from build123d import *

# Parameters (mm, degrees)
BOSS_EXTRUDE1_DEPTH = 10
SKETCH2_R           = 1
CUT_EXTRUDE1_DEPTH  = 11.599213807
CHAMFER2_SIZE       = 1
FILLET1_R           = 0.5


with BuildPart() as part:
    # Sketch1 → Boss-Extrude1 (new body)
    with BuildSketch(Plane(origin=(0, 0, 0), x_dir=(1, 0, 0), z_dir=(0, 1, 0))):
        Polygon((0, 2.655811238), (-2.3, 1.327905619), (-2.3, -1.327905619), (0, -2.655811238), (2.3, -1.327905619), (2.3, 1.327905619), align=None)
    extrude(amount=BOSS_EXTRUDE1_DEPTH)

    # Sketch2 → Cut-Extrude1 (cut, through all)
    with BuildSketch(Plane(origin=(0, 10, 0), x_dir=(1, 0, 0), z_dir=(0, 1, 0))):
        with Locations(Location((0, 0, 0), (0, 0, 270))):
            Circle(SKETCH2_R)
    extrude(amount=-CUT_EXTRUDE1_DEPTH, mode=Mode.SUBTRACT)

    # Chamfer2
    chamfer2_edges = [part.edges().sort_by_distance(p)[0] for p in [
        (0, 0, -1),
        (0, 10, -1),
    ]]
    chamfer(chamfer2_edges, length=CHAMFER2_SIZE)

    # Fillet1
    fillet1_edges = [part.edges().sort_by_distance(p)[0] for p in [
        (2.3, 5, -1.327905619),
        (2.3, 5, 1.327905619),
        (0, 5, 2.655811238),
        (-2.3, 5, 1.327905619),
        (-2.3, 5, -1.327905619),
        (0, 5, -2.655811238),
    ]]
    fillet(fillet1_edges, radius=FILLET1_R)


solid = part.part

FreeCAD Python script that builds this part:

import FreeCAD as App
import Part
import Sketcher
from FreeCAD import Vector
Q = App.Units.Quantity


def edges_at(feature, points):
    """Names of the edges that pass closest to the given points."""
    edges = feature.Shape.Edges
    near = lambda p: min(range(len(edges)), key=lambda i: edges[i].distToShape(Part.Vertex(*p))[0])
    return sorted({f"Edge{near(p) + 1}" for p in points})


def add_polygon(sketch, points):
    """Adds a closed chain of lines whose ends are joined by coincident constraints."""
    first, n = sketch.GeometryCount, len(points)
    for a, b in zip(points, points[1:] + points[:1]):
        sketch.addGeometry(Part.LineSegment(App.Vector(*a, 0), App.Vector(*b, 0)), False)
    for i in range(n):
        sketch.addConstraint(Sketcher.Constraint("Coincident", first + i, 2, first + (i + 1) % n, 1))

doc = App.newDocument("Part")
body = doc.addObject("PartDesign::Body", "Body")

# Sketch on XZ plane
sketch1 = body.newObject("Sketcher::SketchObject", "Sketch")
sketch1.AttachmentSupport = (doc.getObject("XZ_Plane"), [""])
sketch1.MapMode = "FlatFace"
add_polygon(sketch1, [(0, -2.7), (-2.3, -1.3), (-2.3, 1.3), (0, 2.7), (2.3, 1.3), (2.3, -1.3)])  # lines 0-5
sketch1.addConstraint([
    Sketcher.Constraint("Vertical", 1),
    Sketcher.Constraint("Vertical", 4),
    Sketcher.Constraint("Symmetric", 0, 2, 3, 2, -1, 1),
    Sketcher.Constraint("Symmetric", 2, 2, 5, 2, -1, 1),
    Sketcher.Constraint("PointOnObject", 2, 2, -2),
    Sketcher.Constraint("Parallel", 2, 5),
    Sketcher.Constraint("Horizontal", 1, 2, 3, 2),
    Sketcher.Constraint("Angle", 0, Q("150 deg")),
    Sketcher.Constraint("DistanceX", 0, 2, -1, 1, Q("2.3 mm")),
    Sketcher.Constraint("DistanceY", 1, 1, 1, 2, Q("2.655811 mm")),
])
pad1 = body.newObject("PartDesign::Pad", "Pad")
pad1.Profile = sketch1
pad1.Length = 10
pad1.Reversed = True

# Sketch on XZ plane
sketch2 = body.newObject("Sketcher::SketchObject", "Sketch001")
sketch2.AttachmentSupport = (doc.getObject("XZ_Plane"), [""])
sketch2.MapMode = "FlatFace"
sketch2.AttachmentOffset = App.Placement(Vector(0, 0, -10), App.Rotation())
sketch2.addGeometry(Part.Circle(Vector(0, 0, 0), Vector(0, 0, 1), 1), False)
sketch2.addConstraint([
    Sketcher.Constraint("Coincident", 0, 3, -1, 1),
    Sketcher.Constraint("Diameter", 0, Q("2 mm")),
])
pocket1 = body.newObject("PartDesign::Pocket", "Pocket")
pocket1.Profile = sketch2
pocket1.Type = "ThroughAll"
pocket1.Reversed = True
doc.recompute()

chamfer = body.newObject("PartDesign::Chamfer", "Chamfer")
chamfer.Base = (pocket1, edges_at(pocket1, [(0, 0, -1), (0, 10, -1)]))
chamfer.Size = 1
doc.recompute()

fillet = body.newObject("PartDesign::Fillet", "Fillet")
fillet.Base = (chamfer, edges_at(chamfer, [
    (2.3, 5, -1.328),
    (2.3, 5, 1.328),
    (0, 5, 2.656),
    (-2.3, 5, 1.328),
    (-2.3, 5, -1.328),
    (0, 5, -2.656),
]))
fillet.Radius = 0.5

doc.recompute()
